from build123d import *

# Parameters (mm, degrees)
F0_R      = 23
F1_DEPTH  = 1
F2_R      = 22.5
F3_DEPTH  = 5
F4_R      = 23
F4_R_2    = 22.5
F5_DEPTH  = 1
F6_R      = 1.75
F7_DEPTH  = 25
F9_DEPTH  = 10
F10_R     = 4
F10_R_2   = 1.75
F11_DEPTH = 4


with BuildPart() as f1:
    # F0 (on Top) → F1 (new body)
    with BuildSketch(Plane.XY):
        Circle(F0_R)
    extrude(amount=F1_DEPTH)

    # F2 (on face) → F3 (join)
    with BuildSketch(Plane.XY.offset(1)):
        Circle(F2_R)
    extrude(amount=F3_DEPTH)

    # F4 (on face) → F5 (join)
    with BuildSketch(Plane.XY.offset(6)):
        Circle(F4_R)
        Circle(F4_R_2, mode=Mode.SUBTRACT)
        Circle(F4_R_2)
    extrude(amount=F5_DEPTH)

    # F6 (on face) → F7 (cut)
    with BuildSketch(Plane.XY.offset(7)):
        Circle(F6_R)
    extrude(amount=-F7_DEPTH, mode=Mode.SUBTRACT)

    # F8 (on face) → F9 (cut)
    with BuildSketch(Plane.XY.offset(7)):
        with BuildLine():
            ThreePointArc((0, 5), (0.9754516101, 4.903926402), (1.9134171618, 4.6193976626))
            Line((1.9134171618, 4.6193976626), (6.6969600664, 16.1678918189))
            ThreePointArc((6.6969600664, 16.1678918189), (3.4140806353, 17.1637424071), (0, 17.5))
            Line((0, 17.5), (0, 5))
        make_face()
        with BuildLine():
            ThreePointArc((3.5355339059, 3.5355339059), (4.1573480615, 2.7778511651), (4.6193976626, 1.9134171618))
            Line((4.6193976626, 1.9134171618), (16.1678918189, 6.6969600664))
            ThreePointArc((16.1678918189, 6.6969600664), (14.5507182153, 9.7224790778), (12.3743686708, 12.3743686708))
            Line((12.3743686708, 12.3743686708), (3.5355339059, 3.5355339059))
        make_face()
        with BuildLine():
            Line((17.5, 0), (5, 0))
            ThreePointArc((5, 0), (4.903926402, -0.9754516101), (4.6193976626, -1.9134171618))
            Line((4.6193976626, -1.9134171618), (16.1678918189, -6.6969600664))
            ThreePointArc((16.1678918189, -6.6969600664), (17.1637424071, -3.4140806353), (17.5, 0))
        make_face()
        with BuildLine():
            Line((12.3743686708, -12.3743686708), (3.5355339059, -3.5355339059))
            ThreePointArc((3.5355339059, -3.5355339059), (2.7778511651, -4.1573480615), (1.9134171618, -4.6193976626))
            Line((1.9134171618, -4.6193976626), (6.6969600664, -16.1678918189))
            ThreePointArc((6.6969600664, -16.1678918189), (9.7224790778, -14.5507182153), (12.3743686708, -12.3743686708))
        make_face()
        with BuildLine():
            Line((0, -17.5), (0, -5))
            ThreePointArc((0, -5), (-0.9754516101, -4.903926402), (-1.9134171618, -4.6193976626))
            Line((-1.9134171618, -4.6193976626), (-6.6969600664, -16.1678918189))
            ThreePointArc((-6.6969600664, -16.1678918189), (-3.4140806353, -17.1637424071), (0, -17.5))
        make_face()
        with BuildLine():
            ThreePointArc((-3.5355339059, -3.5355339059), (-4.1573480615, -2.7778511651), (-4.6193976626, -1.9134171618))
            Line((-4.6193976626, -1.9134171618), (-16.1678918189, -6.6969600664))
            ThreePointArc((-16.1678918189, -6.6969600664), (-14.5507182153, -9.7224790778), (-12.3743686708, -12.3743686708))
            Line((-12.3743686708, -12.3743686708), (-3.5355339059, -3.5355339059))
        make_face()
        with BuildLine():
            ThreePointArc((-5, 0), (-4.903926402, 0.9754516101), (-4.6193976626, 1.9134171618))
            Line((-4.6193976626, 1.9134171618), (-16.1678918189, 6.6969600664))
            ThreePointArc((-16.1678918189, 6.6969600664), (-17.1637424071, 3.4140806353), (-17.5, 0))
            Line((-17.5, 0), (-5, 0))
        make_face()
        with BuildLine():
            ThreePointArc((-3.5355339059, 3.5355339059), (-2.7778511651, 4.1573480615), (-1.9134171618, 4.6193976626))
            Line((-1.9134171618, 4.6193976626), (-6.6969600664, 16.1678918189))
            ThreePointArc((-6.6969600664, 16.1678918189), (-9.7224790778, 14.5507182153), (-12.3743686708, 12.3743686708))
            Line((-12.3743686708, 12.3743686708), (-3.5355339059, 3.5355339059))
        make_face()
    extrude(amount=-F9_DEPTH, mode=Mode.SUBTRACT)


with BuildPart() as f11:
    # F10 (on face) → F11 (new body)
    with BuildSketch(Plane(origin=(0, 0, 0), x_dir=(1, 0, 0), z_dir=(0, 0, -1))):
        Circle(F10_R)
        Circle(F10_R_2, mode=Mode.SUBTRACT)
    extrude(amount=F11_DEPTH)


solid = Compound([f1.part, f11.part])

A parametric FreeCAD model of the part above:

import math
import FreeCAD as App
import Part
import Sketcher

V = App.Vector
Q = App.Units.Quantity

doc = App.newDocument("Part")
params = doc.addObject("Spreadsheet::Sheet", "Params")
for row, (alias, value) in enumerate([
    ("sketch1_diameter", "46 mm"),
    ("pad1_length", "1 mm"),
    ("sketch2_diameter", "45 mm"),
    ("pad2_length", "5 mm"),
    ("sketch3_diameter", "46 mm"),
    ("pad3_length", "1 mm"),
    ("sketch4_diameter", "3.5 mm"),
    ("pocket1_length", "25 mm"),
    ("sketch5_radius", "5 mm"),
    ("sketch5_radius2", "17.5 mm"),
    ("pocket2_length", "10 mm"),
    ("sketch6_diameter", "8 mm"),
    ("sketch6_diameter2", "3.5 mm"),
    ("pad4_length", "4 mm"),
], start=1):
    params.set(f"A{row}", alias)
    params.set(f"B{row}", "=" + value)
    params.setAlias(f"B{row}", alias)

body = doc.addObject("PartDesign::Body", "Body")

# Sketch on XY plane
sketch1 = body.newObject("Sketcher::SketchObject", "Sketch")
sketch1.AttachmentSupport = (doc.getObject("XY_Plane"), [""])
sketch1.MapMode = "FlatFace"
sketch1.addGeometry(Part.Circle(V(0, 0, 0), V(0, 0, 1), 23), False)
sketch1.addConstraint([
    Sketcher.Constraint("Coincident", 0, 3, -1, 1),
    Sketcher.Constraint("Diameter", 0, 46.0),
])
sketch1.setExpression("Constraints[1]", "Params.sketch1_diameter")
pad1 = body.newObject("PartDesign::Pad", "Pad")
pad1.Profile = sketch1
pad1.setExpression("Length", "Params.pad1_length")

# Sketch on XY plane
sketch2 = body.newObject("Sketcher::SketchObject", "Sketch001")
sketch2.AttachmentSupport = (doc.getObject("XY_Plane"), [""])
sketch2.MapMode = "FlatFace"
sketch2.AttachmentOffset = App.Placement(V(0, 0, 1), App.Rotation())
sketch2.addGeometry(Part.Circle(V(0, 0, 0), V(0, 0, 1), 22.5), False)
sketch2.addConstraint([
    Sketcher.Constraint("Coincident", 0, 3, -1, 1),
    Sketcher.Constraint("Diameter", 0, 45.0),
])
sketch2.setExpression("Constraints[1]", "Params.sketch2_diameter")
pad2 = body.newObject("PartDesign::Pad", "Pad001")
pad2.Profile = sketch2
pad2.setExpression("Length", "Params.pad2_length")

# Sketch on XY plane
sketch3 = body.newObject("Sketcher::SketchObject", "Sketch002")
sketch3.AttachmentSupport = (doc.getObject("XY_Plane"), [""])
sketch3.MapMode = "FlatFace"
sketch3.AttachmentOffset = App.Placement(V(0, 0, 6), App.Rotation())
sketch3.addGeometry(Part.Circle(V(0, 0, 0), V(0, 0, 1), 23), False)
sketch3.addConstraint([
    Sketcher.Constraint("Coincident", 0, 3, -1, 1),
    Sketcher.Constraint("Diameter", 0, 46.0),
])
sketch3.setExpression("Constraints[1]", "Params.sketch3_diameter")
pad3 = body.newObject("PartDesign::Pad", "Pad002")
pad3.Profile = sketch3
pad3.setExpression("Length", "Params.pad3_length")

# Sketch on XY plane
sketch4 = body.newObject("Sketcher::SketchObject", "Sketch003")
sketch4.AttachmentSupport = (doc.getObject("XY_Plane"), [""])
sketch4.MapMode = "FlatFace"
sketch4.AttachmentOffset = App.Placement(V(0, 0, 7), App.Rotation())
sketch4.addGeometry(Part.Circle(V(0, 0, 0), V(0, 0, 1), 1.75), False)
sketch4.addConstraint([
    Sketcher.Constraint("Coincident", 0, 3, -1, 1),
    Sketcher.Constraint("Diameter", 0, 3.5),
])
sketch4.setExpression("Constraints[1]", "Params.sketch4_diameter")
pocket1 = body.newObject("PartDesign::Pocket", "Pocket")
pocket1.Profile = sketch4
pocket1.setExpression("Length", "Params.pocket1_length")

# Sketch on XY plane
sketch5 = body.newObject("Sketcher::SketchObject", "Sketch004")
sketch5.AttachmentSupport = (doc.getObject("XY_Plane"), [""])
sketch5.MapMode = "FlatFace"
sketch5.AttachmentOffset = App.Placement(V(0, 0, 7), App.Rotation())
sketch5.addGeometry([
    Part.ArcOfCircle(Part.Circle(V(0, 0, 0), V(0, 0, 1), 5), math.radians(67.5), math.radians(90)),  # 0
    Part.LineSegment(V(1.913417, 4.619398, 0), V(6.69696, 16.167892, 0)),  # 1
    Part.ArcOfCircle(Part.Circle(V(0, 0, 0), V(0, 0, 1), 17.5), math.radians(67.5), math.radians(90)),  # 2
    Part.LineSegment(V(0, 17.5, 0), V(0, 5, 0)),  # 3
    Part.ArcOfCircle(Part.Circle(V(0, 0, 0), V(0, 0, 1), 5), math.radians(22.5), math.radians(45)),  # 4
    Part.LineSegment(V(4.619398, 1.913417, 0), V(16.167892, 6.69696, 0)),  # 5
    Part.ArcOfCircle(Part.Circle(V(0, 0, 0), V(0, 0, 1), 17.5), math.radians(22.5), math.radians(45)),  # 6
    Part.LineSegment(V(12.374369, 12.374369, 0), V(3.535534, 3.535534, 0)),  # 7
    Part.LineSegment(V(17.5, 0, 0), V(5, 0, 0)),  # 8
    Part.ArcOfCircle(Part.Circle(V(0, 0, 0), V(0, 0, 1), 5), math.radians(-22.5), math.radians(0)),  # 9
    Part.LineSegment(V(4.619398, -1.913417, 0), V(16.167892, -6.69696, 0)),  # 10
    Part.ArcOfCircle(Part.Circle(V(0, 0, 0), V(0, 0, 1), 17.5), math.radians(-22.5), math.radians(0)),  # 11
    Part.LineSegment(V(12.374369, -12.374369, 0), V(3.535534, -3.535534, 0)),  # 12
    Part.ArcOfCircle(Part.Circle(V(0, 0, 0), V(0, 0, 1), 5), math.radians(-67.5), math.radians(-45)),  # 13
    Part.LineSegment(V(1.913417, -4.619398, 0), V(6.69696, -16.167892, 0)),  # 14
    Part.ArcOfCircle(Part.Circle(V(0, 0, 0), V(0, 0, 1), 17.5), math.radians(-67.5), math.radians(-45)),  # 15
    Part.LineSegment(V(0, -17.5, 0), V(0, -5, 0)),  # 16
    Part.ArcOfCircle(Part.Circle(V(0, 0, 0), V(0, 0, 1), 5), math.radians(-112.5), math.radians(-90)),  # 17
    Part.LineSegment(V(-1.913417, -4.619398, 0), V(-6.69696, -16.167892, 0)),  # 18
    Part.ArcOfCircle(Part.Circle(V(0, 0, 0), V(0, 0, 1), 17.5), math.radians(-112.5), math.radians(-90)),  # 19
    Part.ArcOfCircle(Part.Circle(V(0, 0, 0), V(0, 0, 1), 5), math.radians(-157.5), math.radians(-135)),  # 20
    Part.LineSegment(V(-4.619398, -1.913417, 0), V(-16.167892, -6.69696, 0)),  # 21
    Part.ArcOfCircle(Part.Circle(V(0, 0, 0), V(0, 0, 1), 17.5), math.radians(-157.5), math.radians(-135)),  # 22
    Part.LineSegment(V(-12.374369, -12.374369, 0), V(-3.535534, -3.535534, 0)),  # 23
    Part.ArcOfCircle(Part.Circle(V(0, 0, 0), V(0, 0, 1), 5), math.radians(157.5), math.radians(180)),  # 24
    Part.LineSegment(V(-4.619398, 1.913417, 0), V(-16.167892, 6.69696, 0)),  # 25
    Part.ArcOfCircle(Part.Circle(V(0, 0, 0), V(0, 0, 1), 17.5), math.radians(157.5), math.radians(180)),  # 26
    Part.LineSegment(V(-17.5, 0, 0), V(-5, 0, 0)),  # 27
    Part.ArcOfCircle(Part.Circle(V(0, 0, 0), V(0, 0, 1), 5), math.radians(112.5), math.radians(135)),  # 28
    Part.LineSegment(V(-1.913417, 4.619398, 0), V(-6.69696, 16.167892, 0)),  # 29
    Part.ArcOfCircle(Part.Circle(V(0, 0, 0), V(0, 0, 1), 17.5), math.radians(112.5), math.radians(135)),  # 30
    Part.LineSegment(V(-12.374369, 12.374369, 0), V(-3.535534, 3.535534, 0)),  # 31
], False)
sketch5.addConstraint([
    Sketcher.Constraint("Coincident", 0, 1, 1, 1),
    Sketcher.Constraint("Coincident", 1, 2, 2, 1),
    Sketcher.Constraint("Coincident", 2, 2, 3, 1),
    Sketcher.Constraint("Coincident", 3, 2, 0, 2),
    Sketcher.Constraint("Coincident", 4, 1, 5, 1),
    Sketcher.Constraint("Coincident", 5, 2, 6, 1),
    Sketcher.Constraint("Coincident", 6, 2, 7, 1),
    Sketcher.Constraint("Coincident", 7, 2, 4, 2),
    Sketcher.Constraint("Coincident", 8, 2, 9, 2),
    Sketcher.Constraint("Coincident", 9, 1, 10, 1),
    Sketcher.Constraint("Coincident", 10, 2, 11, 1),
    Sketcher.Constraint("Coincident", 11, 2, 8, 1),
    Sketcher.Constraint("Coincident", 12, 2, 13, 2),
    Sketcher.Constraint("Coincident", 13, 1, 14, 1),
    Sketcher.Constraint("Coincident", 14, 2, 15, 1),
    Sketcher.Constraint("Coincident", 15, 2, 12, 1),
    Sketcher.Constraint("Coincident", 16, 2, 17, 2),
    Sketcher.Constraint("Coincident", 17, 1, 18, 1),
    Sketcher.Constraint("Coincident", 18, 2, 19, 1),
    Sketcher.Constraint("Coincident", 19, 2, 16, 1),
    Sketcher.Constraint("Coincident", 20, 1, 21, 1),
    Sketcher.Constraint("Coincident", 21, 2, 22, 1),
    Sketcher.Constraint("Coincident", 22, 2, 23, 1),
    Sketcher.Constraint("Coincident", 23, 2, 20, 2),
    Sketcher.Constraint("Coincident", 24, 1, 25, 1),
    Sketcher.Constraint("Coincident", 25, 2, 26, 1),
    Sketcher.Constraint("Coincident", 26, 2, 27, 1),
    Sketcher.Constraint("Coincident", 27, 2, 24, 2),
    Sketcher.Constraint("Coincident", 28, 1, 29, 1),
    Sketcher.Constraint("Coincident", 29, 2, 30, 1),
    Sketcher.Constraint("Coincident", 30, 2, 31, 1),
    Sketcher.Constraint("Coincident", 31, 2, 28, 2),
    Sketcher.Constraint("Vertical", 3),
    Sketcher.Constraint("Horizontal", 8),
    Sketcher.Constraint("Vertical", 16),
    Sketcher.Constraint("Horizontal", 27),
    Sketcher.Constraint("Coincident", 0, 3, -1, 1),
    Sketcher.Constraint("Coincident", 2, 3, -1, 1),
    Sketcher.Constraint("Coincident", 4, 3, -1, 1),
    Sketcher.Constraint("Coincident", 6, 3, -1, 1),
    Sketcher.Constraint("Coincident", 9, 3, -1, 1),
    Sketcher.Constraint("Coincident", 11, 3, -1, 1),
    Sketcher.Constraint("Coincident", 13, 3, -1, 1),
    Sketcher.Constraint("Coincident", 15, 3, -1, 1),
    Sketcher.Constraint("Coincident", 17, 3, -1, 1),
    Sketcher.Constraint("Coincident", 19, 3, -1, 1),
    Sketcher.Constraint("Coincident", 20, 3, -1, 1),
    Sketcher.Constraint("Coincident", 22, 3, -1, 1),
    Sketcher.Constraint("Coincident", 24, 3, -1, 1),
    Sketcher.Constraint("Coincident", 26, 3, -1, 1),
    Sketcher.Constraint("Coincident", 28, 3, -1, 1),
    Sketcher.Constraint("Coincident", 30, 3, -1, 1),
    Sketcher.Constraint("Equal", 0, 4),
    Sketcher.Constraint("Equal", 2, 6),
    Sketcher.Constraint("Equal", 4, 9),
    Sketcher.Constraint("Equal", 6, 11),
    Sketcher.Constraint("Equal", 9, 13),
    Sketcher.Constraint("Equal", 11, 15),
    Sketcher.Constraint("Equal", 13, 17),
    Sketcher.Constraint("Equal", 15, 19),
    Sketcher.Constraint("Equal", 17, 20),
    Sketcher.Constraint("Equal", 19, 22),
    Sketcher.Constraint("Equal", 20, 24),
    Sketcher.Constraint("Equal", 22, 26),
    Sketcher.Constraint("Equal", 24, 28),
    Sketcher.Constraint("Equal", 26, 30),
    Sketcher.Constraint("PointOnObject", 2, 2, -2),
    Sketcher.Constraint("PointOnObject", 8, 2, -1),
    Sketcher.Constraint("PointOnObject", 16, 2, -2),
    Sketcher.Constraint("PointOnObject", 26, 2, -1),
    Sketcher.Constraint("Perpendicular", 1, 10),
    Sketcher.Constraint("Perpendicular", 7, 12),
    Sketcher.Constraint("Perpendicular", 5, 14),
    Sketcher.Constraint("Perpendicular", 10, 18),
    Sketcher.Constraint("Perpendicular", 14, 21),
    Sketcher.Constraint("Perpendicular", 12, 23),
    Sketcher.Constraint("Perpendicular", 18, 25),
    Sketcher.Constraint("Perpendicular", 21, 29),
    Sketcher.Constraint("Perpendicular", 23, 31),
    Sketcher.Constraint("Horizontal", 13, 1, 17, 1),
    Sketcher.Constraint("Horizontal", 14, 2, 18, 2),
    Sketcher.Constraint("Horizontal", 9, 1, 20, 1),
    Sketcher.Constraint("Horizontal", 15, 2, 22, 2),
    Sketcher.Constraint("Horizontal", 12, 2, 23, 2),
    Sketcher.Constraint("Horizontal", 4, 1, 24, 1),
    Sketcher.Constraint("Horizontal", 0, 1, 28, 1),
    Sketcher.Constraint("Horizontal", 6, 2, 30, 2),
    Sketcher.Constraint("Vertical", 4, 1, 9, 1),
    Sketcher.Constraint("Vertical", 7, 2, 12, 2),
    Sketcher.Constraint("Vertical", 0, 1, 13, 1),
    Sketcher.Constraint("Radius", 0, 5.0),
    Sketcher.Constraint("Radius", 2, 17.5),
    Sketcher.Constraint("Angle", 1, Q("67.5 deg")),
    Sketcher.Constraint("DistanceX", -1, 1, 1, 2, 6.69696),
    Sketcher.Constraint("DistanceX", -1, 1, 5, 2, 16.167892),
    Sketcher.Constraint("DistanceX", -1, 1, 6, 2, 12.374369),
])
sketch5.setExpression("Constraints[90]", "Params.sketch5_radius")
sketch5.setExpression("Constraints[91]", "Params.sketch5_radius2")
pocket2 = body.newObject("PartDesign::Pocket", "Pocket001")
pocket2.Profile = sketch5
pocket2.setExpression("Length", "Params.pocket2_length")
body2 = doc.addObject("PartDesign::Body", "Body001")

# Sketch on XY plane
sketch6 = body2.newObject("Sketcher::SketchObject", "Sketch005")
sketch6.AttachmentSupport = (doc.getObject("XY_Plane001"), [""])
sketch6.MapMode = "FlatFace"
sketch6.addGeometry([
    Part.Circle(V(0, 0, 0), V(0, 0, 1), 4),
    Part.Circle(V(0, 0, 0), V(0, 0, 1), 1.75),
], False)
sketch6.addConstraint([
    Sketcher.Constraint("Coincident", 0, 3, -1, 1),
    Sketcher.Constraint("Coincident", 1, 3, -1, 1),
    Sketcher.Constraint("Diameter", 0, 8.0),
    Sketcher.Constraint("Diameter", 1, 3.5),
])
sketch6.setExpression("Constraints[2]", "Params.sketch6_diameter")
sketch6.setExpression("Constraints[3]", "Params.sketch6_diameter2")
pad4 = body2.newObject("PartDesign::Pad", "Pad003")
pad4.Profile = sketch6
pad4.setExpression("Length", "Params.pad4_length")
pad4.Reversed = True

doc.recompute()
